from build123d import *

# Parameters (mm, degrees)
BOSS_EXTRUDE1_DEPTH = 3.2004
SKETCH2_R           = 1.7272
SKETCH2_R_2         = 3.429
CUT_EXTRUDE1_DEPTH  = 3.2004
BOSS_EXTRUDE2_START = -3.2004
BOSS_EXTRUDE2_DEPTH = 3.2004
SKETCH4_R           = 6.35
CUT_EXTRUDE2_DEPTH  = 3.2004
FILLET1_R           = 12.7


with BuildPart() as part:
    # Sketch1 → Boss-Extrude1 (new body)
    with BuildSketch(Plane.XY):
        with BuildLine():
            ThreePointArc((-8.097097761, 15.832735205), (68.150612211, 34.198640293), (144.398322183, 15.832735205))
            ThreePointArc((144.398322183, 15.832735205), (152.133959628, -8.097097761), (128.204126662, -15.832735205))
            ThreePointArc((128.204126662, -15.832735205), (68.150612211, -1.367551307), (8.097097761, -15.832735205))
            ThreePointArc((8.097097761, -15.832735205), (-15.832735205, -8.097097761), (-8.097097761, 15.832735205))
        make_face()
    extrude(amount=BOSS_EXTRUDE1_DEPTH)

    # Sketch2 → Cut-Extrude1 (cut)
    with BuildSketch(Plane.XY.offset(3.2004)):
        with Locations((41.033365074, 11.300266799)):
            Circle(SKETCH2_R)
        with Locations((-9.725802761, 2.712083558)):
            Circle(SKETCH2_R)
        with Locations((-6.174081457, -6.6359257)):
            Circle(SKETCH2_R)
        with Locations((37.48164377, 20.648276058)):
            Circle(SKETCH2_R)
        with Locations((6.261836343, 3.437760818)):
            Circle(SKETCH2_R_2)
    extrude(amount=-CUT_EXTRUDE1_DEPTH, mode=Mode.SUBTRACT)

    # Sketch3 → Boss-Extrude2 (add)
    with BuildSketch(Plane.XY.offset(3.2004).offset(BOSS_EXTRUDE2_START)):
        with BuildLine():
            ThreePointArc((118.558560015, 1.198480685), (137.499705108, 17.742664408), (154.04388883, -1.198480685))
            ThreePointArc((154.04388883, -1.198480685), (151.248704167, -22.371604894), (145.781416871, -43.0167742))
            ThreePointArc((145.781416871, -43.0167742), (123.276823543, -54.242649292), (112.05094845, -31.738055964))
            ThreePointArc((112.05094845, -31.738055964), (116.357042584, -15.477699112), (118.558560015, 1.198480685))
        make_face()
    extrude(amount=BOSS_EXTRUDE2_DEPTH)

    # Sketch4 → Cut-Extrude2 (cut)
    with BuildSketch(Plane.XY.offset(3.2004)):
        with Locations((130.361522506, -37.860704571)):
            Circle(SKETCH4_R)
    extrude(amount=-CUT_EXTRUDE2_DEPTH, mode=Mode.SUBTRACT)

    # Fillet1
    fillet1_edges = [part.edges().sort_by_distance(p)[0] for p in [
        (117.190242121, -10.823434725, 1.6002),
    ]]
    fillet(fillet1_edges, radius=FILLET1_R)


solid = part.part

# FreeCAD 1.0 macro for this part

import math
import FreeCAD as App
import Part
import Sketcher

V = App.Vector
Q = App.Units.Quantity


def edges_at(feature, points):
    """Names of the edges that pass closest to the given points."""
    edges = feature.Shape.Edges
    near = lambda p: min(range(len(edges)), key=lambda i: edges[i].distToShape(Part.Vertex(*p))[0])
    return sorted({f"Edge{near(p) + 1}" for p in points})

doc = App.newDocument("Part")
body = doc.addObject("PartDesign::Body", "Body")

sketch1 = body.newObject("Sketcher::SketchObject", "Sketch")
sketch1.AttachmentSupport = (doc.getObject("XY_Plane"), [""])
sketch1.MapMode = "FlatFace"
sketch1.addGeometry([
    Part.ArcOfCircle(Part.Circle(V(68, -133, 0), V(0, 0, 1), 167), math.radians(63), math.radians(117)),
    Part.ArcOfCircle(Part.Circle(V(0, 0, 0), V(0, 0, 1), 18), math.radians(117), math.radians(297)),
    Part.ArcOfCircle(Part.Circle(V(68, -133, 0), V(0, 0, 1), 132), math.radians(63), math.radians(117)),
    Part.ArcOfCircle(Part.Circle(V(136, 0, 0), V(0, 0, 1), 18), math.radians(-117), math.radians(63)),
], False)
sketch1.addConstraint([
    Sketcher.Constraint("Tangent", 0, 2, 1, 1),
    Sketcher.Constraint("Tangent", 1, 2, 2, 2),
    Sketcher.Constraint("Tangent", 2, 1, 3, 1),
    Sketcher.Constraint("Tangent", 3, 2, 0, 1),
    Sketcher.Constraint("Coincident", 1, 3, -1, 1),
    Sketcher.Constraint("Coincident", 2, 3, 0, 3),
    Sketcher.Constraint("PointOnObject", 3, 3, -1),
    Sketcher.Constraint("Radius", 0, 167.457572),
    Sketcher.Constraint("Radius", 2, 131.89138),
    Sketcher.Constraint("DistanceY", 0, 3, -1, 1, 133.258932),
])
pad1 = body.newObject("PartDesign::Pad", "Pad")
pad1.Profile = sketch1
pad1.Length = Q("0.126 in")

sketch2 = body.newObject("Sketcher::SketchObject", "Sketch001")
sketch2.AttachmentSupport = (doc.getObject("XY_Plane"), [""])
sketch2.MapMode = "FlatFace"
sketch2.AttachmentOffset = App.Placement(V(0, 0, 0.126 * 25.4), App.Rotation())
sketch2.addGeometry([
    Part.Circle(V(41, 11.3, 0), V(0, 0, 1), 1.7),
    Part.Circle(V(-9.7, 2.7, 0), V(0, 0, 1), 1.7),
    Part.Circle(V(-6.2, -6.6, 0), V(0, 0, 1), 1.7),
    Part.Circle(V(37.5, 20.6, 0), V(0, 0, 1), 1.7),
    Part.Circle(V(6.3, 3.4, 0), V(0, 0, 1), 3.4),
], False)
sketch2.addConstraint([
    Sketcher.Constraint("Equal", 0, 1),
    Sketcher.Constraint("Equal", 1, 2),
    Sketcher.Constraint("Equal", 2, 3),
    Sketcher.Constraint("Diameter", 4, Q("0.27 in")),
    Sketcher.Constraint("Diameter", 0, Q("0.136 in")),
    Sketcher.Constraint("DistanceY", 2, 3, 3, 3, 27.284202),
    Sketcher.Constraint("DistanceX", 2, 3, -1, 1, 6.174081),
    Sketcher.Constraint("DistanceY", -1, 1, 4, 3, 3.437761),
    Sketcher.Constraint("DistanceX", 1, 3, 2, 3, 3.551721),
    Sketcher.Constraint("DistanceY", 2, 3, 1, 3, 9.348009),
    Sketcher.Constraint("DistanceX", 3, 3, 0, 3, 3.551721),
    Sketcher.Constraint("DistanceY", 0, 3, 3, 3, 9.348009),
    Sketcher.Constraint("DistanceX", 1, 3, 4, 3, 15.987639),
    Sketcher.Constraint("DistanceX", 4, 3, 0, 3, 34.771529),
    Sketcher.Constraint("DistanceY", -1, 1, 0, 3, 11.300267),
])
pocket1 = body.newObject("PartDesign::Pocket", "Pocket")
pocket1.Profile = sketch2
pocket1.Length = Q("0.126 in")

sketch3 = body.newObject("Sketcher::SketchObject", "Sketch002")
sketch3.AttachmentSupport = (doc.getObject("XY_Plane"), [""])
sketch3.MapMode = "FlatFace"
sketch3.addGeometry([
    Part.ArcOfCircle(Part.Circle(V(136, 0, 0), V(0, 0, 1), 18), math.radians(-4), math.radians(176)),
    Part.ArcOfCircle(Part.Circle(V(-13, 10, 0), V(0, 0, 1), 132), math.radians(-18.49), math.radians(-3.86)),
    Part.ArcOfCircle(Part.Circle(V(129, -37, 0), V(0, 0, 1), 18), math.radians(162), math.radians(342)),
    Part.ArcOfCircle(Part.Circle(V(-13, 10, 0), V(0, 0, 1), 167), math.radians(-18.49), math.radians(-3.86)),
], False)
sketch3.addConstraint([
    Sketcher.Constraint("Tangent", 0, 2, 1, 2),
    Sketcher.Constraint("Tangent", 1, 1, 2, 1),
    Sketcher.Constraint("Tangent", 2, 2, 3, 1),
    Sketcher.Constraint("Tangent", 3, 2, 0, 1),
    Sketcher.Constraint("Coincident", 3, 3, 1, 3),
    Sketcher.Constraint("PointOnObject", 0, 3, -1),
    Sketcher.Constraint("Radius", 1, 131.89138),
    Sketcher.Constraint("Radius", 3, 167.457572),
    Sketcher.Constraint("DistanceY", -1, 1, 1, 3, 10.087218),
    Sketcher.Constraint("DistanceX", -1, 1, 0, 2, 118.55856),
    Sketcher.Constraint("DistanceX", -1, 1, 1, 1, 112.050948),
])
pad2 = body.newObject("PartDesign::Pad", "Pad001")
pad2.Profile = sketch3
pad2.Length = Q("0.126 in")

sketch4 = body.newObject("Sketcher::SketchObject", "Sketch003")
sketch4.AttachmentSupport = (doc.getObject("XY_Plane"), [""])
sketch4.MapMode = "FlatFace"
sketch4.AttachmentOffset = App.Placement(V(0, 0, 0.126 * 25.4), App.Rotation())
sketch4.addGeometry(Part.Circle(V(130, -38, 0), V(0, 0, 1), 6), False)
sketch4.addConstraint([
    Sketcher.Constraint("Diameter", 0, Q("0.5 in")),
    Sketcher.Constraint("DistanceX", -1, 1, 0, 3, 130.361523),
    Sketcher.Constraint("DistanceY", 0, 3, -1, 1, 37.860705),
])
pocket2 = body.newObject("PartDesign::Pocket", "Pocket001")
pocket2.Profile = sketch4
pocket2.Length = Q("0.126 in")
doc.recompute()

fillet = body.newObject("PartDesign::Fillet", "Fillet")
fillet.Base = (pocket2, edges_at(pocket2, [(117.19, -10.823, 1.6)]))
fillet.Radius = Q("0.5 in")

doc.recompute()
